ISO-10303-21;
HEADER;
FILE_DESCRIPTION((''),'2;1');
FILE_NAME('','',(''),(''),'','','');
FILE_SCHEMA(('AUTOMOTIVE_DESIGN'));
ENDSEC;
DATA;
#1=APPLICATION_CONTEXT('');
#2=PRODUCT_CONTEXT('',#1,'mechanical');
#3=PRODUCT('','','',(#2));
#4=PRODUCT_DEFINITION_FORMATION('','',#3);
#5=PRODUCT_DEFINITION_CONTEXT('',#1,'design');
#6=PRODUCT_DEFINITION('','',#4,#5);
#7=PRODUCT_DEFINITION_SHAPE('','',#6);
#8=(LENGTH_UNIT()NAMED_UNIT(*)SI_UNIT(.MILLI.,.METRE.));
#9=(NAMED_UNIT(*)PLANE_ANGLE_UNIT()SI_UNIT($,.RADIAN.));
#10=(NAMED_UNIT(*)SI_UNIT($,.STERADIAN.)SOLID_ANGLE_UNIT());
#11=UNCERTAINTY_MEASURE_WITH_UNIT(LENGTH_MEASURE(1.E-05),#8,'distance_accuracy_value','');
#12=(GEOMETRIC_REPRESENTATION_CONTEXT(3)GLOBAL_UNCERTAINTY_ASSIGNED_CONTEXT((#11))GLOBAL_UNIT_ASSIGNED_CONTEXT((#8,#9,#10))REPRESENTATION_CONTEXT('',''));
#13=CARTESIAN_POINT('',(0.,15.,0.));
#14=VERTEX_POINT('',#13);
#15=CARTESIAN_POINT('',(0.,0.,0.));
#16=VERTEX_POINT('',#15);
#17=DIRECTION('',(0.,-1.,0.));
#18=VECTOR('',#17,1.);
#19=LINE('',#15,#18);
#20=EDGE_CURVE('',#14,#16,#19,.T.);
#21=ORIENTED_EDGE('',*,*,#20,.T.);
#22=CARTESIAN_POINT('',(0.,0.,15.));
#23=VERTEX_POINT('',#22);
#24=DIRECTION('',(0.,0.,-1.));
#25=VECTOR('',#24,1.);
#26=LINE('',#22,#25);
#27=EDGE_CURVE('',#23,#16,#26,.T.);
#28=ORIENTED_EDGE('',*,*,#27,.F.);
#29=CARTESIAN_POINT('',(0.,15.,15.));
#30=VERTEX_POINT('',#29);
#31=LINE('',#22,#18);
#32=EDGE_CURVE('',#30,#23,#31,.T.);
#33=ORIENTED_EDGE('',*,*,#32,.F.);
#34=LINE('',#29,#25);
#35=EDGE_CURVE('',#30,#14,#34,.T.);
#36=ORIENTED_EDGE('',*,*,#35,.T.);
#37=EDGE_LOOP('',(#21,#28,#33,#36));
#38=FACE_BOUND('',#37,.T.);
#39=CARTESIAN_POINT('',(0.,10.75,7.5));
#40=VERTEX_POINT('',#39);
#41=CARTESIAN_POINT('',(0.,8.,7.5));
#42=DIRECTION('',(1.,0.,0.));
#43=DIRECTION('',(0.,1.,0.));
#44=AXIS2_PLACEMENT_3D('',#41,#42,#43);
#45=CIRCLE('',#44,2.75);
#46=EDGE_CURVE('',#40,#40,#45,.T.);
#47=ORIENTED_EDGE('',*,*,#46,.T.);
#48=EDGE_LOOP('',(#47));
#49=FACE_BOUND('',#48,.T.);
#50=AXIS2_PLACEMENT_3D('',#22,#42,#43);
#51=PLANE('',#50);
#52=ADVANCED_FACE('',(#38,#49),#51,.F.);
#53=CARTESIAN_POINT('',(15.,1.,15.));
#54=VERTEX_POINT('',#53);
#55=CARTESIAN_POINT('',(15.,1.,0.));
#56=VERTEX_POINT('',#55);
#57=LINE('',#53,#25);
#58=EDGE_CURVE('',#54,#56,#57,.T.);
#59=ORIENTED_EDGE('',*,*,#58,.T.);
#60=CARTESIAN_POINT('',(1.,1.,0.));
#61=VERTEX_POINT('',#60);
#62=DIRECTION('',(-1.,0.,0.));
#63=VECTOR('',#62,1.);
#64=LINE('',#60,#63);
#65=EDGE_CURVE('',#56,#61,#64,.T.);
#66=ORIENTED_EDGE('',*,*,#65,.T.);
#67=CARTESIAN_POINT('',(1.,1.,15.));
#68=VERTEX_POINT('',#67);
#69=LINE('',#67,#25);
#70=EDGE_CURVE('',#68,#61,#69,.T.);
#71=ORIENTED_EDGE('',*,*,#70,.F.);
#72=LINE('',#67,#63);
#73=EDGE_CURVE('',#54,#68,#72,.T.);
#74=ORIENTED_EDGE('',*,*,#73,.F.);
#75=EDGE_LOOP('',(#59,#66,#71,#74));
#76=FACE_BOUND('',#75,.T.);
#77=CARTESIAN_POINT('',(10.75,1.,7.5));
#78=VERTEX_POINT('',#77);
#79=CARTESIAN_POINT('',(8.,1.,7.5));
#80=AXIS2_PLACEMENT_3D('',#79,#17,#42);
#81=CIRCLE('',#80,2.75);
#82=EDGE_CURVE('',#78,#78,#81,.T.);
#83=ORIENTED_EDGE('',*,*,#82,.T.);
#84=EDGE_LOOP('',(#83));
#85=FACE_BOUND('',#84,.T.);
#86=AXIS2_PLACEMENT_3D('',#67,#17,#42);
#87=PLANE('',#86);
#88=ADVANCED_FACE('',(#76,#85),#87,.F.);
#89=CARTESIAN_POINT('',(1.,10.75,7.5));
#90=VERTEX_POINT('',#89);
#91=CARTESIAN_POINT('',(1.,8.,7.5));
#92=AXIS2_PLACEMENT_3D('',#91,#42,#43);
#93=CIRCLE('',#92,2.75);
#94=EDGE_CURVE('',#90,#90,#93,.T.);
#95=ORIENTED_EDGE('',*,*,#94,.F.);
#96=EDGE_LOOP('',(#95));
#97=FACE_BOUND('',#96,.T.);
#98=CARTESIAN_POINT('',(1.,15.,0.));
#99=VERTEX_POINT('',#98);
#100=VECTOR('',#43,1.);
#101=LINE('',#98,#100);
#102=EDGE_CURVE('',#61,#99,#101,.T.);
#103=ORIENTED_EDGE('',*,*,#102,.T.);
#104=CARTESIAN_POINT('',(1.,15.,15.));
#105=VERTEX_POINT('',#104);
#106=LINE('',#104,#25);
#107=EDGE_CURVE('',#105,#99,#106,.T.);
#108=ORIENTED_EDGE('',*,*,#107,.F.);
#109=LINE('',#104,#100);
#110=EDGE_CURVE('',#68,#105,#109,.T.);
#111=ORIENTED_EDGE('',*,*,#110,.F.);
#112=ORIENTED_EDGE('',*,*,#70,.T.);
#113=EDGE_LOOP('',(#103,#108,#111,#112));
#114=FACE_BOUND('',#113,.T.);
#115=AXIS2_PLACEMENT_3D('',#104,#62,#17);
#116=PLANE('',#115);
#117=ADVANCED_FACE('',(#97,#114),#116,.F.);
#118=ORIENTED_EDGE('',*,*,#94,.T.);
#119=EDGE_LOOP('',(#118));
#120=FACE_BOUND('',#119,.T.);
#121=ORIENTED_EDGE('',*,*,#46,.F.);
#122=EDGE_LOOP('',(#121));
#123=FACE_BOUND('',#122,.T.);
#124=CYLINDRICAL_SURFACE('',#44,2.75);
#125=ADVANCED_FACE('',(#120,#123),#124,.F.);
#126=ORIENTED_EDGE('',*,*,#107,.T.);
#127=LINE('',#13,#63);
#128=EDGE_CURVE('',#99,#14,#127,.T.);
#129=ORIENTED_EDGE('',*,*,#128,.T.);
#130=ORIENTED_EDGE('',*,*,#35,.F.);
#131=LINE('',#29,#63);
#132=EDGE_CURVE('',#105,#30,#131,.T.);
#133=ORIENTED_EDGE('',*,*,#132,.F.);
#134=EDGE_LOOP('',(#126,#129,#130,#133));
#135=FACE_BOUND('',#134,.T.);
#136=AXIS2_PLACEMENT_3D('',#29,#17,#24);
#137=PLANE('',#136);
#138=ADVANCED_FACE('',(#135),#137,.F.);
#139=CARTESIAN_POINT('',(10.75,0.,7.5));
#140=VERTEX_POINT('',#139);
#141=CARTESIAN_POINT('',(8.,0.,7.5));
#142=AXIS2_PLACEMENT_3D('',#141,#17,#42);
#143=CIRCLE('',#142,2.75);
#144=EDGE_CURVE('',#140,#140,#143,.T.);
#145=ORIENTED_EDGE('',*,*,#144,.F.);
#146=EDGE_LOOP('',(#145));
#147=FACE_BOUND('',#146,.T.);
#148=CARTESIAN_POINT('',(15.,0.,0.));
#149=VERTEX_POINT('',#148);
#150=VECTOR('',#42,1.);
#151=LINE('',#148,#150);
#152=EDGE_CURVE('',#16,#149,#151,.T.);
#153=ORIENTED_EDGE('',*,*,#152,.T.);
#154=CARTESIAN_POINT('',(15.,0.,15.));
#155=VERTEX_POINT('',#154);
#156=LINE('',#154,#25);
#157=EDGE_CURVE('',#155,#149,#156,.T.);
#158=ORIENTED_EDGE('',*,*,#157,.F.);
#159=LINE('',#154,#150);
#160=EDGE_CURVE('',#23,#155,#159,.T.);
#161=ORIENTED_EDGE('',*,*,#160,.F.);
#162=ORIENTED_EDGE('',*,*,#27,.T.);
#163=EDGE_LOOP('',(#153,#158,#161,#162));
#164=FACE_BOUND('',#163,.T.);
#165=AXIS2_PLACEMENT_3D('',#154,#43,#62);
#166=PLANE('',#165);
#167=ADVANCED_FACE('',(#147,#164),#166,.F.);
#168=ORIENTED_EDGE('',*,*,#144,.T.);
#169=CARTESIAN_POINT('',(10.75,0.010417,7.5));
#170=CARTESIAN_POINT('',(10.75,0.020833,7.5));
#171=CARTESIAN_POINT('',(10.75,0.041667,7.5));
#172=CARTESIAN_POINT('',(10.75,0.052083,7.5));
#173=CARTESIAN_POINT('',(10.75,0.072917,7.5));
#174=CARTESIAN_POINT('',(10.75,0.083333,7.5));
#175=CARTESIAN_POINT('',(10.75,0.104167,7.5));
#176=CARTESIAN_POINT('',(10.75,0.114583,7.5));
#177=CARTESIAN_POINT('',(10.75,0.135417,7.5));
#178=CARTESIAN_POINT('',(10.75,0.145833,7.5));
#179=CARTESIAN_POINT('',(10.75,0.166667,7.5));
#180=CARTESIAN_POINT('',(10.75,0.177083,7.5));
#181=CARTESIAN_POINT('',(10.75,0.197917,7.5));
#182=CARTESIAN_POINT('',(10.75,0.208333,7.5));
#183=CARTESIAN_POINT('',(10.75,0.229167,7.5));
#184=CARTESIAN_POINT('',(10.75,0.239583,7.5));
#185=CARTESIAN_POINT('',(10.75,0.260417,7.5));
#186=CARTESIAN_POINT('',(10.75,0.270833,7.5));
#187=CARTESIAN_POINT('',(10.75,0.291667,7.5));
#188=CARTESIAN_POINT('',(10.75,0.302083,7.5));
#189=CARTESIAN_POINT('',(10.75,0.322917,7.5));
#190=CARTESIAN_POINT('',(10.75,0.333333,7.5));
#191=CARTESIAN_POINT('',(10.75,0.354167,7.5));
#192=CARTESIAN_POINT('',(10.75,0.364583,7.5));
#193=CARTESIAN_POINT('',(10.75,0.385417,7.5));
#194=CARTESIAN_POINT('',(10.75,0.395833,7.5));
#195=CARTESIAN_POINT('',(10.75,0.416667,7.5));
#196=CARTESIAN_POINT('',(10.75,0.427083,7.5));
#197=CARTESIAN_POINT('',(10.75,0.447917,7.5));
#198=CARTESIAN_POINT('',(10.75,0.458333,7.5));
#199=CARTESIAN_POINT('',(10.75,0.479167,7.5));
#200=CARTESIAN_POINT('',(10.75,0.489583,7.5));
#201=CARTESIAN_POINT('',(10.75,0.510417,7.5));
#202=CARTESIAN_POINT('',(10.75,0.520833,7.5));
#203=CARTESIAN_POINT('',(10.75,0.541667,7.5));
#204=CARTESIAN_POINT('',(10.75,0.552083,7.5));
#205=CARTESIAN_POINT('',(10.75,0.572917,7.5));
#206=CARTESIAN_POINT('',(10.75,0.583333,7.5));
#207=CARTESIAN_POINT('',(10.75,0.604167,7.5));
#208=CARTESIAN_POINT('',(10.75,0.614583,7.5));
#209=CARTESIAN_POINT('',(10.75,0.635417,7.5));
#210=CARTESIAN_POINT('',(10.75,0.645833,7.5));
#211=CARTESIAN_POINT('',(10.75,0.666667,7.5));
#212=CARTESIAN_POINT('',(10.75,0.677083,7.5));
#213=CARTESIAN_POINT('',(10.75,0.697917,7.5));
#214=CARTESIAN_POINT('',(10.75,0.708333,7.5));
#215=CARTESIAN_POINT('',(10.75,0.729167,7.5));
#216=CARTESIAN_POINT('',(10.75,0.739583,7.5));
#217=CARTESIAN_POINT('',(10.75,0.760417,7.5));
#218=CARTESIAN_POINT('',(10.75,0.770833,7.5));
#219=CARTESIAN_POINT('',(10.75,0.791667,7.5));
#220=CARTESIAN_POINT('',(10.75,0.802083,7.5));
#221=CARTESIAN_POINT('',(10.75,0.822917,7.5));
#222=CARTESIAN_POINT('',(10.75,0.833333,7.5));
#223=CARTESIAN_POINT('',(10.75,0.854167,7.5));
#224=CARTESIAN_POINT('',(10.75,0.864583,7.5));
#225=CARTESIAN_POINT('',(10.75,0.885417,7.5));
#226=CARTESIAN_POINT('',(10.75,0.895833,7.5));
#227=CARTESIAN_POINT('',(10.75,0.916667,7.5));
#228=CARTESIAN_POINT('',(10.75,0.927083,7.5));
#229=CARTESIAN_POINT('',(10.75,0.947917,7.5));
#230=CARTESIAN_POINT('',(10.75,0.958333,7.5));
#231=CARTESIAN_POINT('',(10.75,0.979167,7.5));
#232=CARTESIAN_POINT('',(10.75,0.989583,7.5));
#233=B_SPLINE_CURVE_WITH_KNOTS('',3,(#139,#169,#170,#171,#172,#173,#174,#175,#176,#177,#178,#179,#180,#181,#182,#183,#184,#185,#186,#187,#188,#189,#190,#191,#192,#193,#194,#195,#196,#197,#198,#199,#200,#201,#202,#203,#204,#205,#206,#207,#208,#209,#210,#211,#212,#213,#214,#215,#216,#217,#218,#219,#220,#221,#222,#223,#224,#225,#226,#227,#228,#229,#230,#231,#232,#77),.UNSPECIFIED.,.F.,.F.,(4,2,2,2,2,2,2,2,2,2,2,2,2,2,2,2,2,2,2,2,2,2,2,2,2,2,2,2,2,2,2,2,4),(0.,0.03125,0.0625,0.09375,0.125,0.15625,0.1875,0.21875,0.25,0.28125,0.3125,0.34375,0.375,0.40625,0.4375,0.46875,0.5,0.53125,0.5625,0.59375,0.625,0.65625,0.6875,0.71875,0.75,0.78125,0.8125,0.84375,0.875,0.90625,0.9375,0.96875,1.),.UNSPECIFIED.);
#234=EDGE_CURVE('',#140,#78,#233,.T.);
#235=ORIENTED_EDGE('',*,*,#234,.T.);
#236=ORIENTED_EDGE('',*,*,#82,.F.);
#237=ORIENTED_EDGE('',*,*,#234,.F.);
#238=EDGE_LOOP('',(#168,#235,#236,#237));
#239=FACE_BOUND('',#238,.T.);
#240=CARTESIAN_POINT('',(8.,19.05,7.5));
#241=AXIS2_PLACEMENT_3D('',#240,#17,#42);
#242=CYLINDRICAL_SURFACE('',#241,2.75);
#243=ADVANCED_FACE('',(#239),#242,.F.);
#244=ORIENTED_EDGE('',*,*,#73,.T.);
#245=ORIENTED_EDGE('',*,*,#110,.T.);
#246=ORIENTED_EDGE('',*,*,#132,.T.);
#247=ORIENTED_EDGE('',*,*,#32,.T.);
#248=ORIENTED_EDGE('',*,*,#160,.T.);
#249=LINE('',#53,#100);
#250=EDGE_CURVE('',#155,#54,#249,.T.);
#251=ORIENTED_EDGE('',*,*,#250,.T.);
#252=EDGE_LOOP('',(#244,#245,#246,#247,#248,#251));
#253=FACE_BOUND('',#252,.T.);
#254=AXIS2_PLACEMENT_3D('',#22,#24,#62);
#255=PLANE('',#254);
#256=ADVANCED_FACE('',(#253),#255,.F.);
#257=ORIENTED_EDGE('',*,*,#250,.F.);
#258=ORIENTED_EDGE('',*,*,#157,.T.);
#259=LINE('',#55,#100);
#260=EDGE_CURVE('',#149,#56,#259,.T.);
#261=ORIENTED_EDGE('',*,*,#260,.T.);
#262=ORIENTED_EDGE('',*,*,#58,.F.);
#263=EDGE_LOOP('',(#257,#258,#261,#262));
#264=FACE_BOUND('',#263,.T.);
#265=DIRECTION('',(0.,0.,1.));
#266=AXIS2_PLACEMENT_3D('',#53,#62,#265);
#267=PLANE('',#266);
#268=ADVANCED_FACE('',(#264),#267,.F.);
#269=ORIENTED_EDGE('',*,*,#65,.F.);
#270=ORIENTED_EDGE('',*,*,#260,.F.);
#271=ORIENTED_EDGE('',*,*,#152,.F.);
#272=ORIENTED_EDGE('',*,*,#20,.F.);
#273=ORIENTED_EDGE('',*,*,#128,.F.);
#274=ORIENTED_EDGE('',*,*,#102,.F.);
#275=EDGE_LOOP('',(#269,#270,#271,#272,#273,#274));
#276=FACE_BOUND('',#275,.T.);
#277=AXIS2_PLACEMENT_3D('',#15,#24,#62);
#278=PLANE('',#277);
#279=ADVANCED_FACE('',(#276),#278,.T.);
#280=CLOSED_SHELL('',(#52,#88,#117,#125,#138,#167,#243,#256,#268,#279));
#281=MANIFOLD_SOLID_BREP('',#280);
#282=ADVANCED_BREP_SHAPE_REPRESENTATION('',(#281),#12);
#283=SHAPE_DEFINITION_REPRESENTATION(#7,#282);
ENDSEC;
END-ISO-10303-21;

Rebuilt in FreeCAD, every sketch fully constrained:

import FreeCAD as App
import Part
import Sketcher

V = App.Vector

doc = App.newDocument("Part")
body = doc.addObject("PartDesign::Body", "Body")

sketch1 = doc.addObject("Sketcher::SketchObject", "Sketch")
body.addObject(sketch1)
sketch1.AttachmentSupport = (doc.XY_Plane, [""])
sketch1.MapMode = "FlatFace"
sketch1.addGeometry([
    Part.LineSegment(V(0, 15, 0), V(0, 0, 0)),
    Part.LineSegment(V(0, 0, 0), V(15, 0, 0)),
    Part.LineSegment(V(15, 0, 0), V(15, 1, 0)),
    Part.LineSegment(V(15, 1, 0), V(1, 1, 0)),
    Part.LineSegment(V(1, 1, 0), V(1, 15, 0)),
    Part.LineSegment(V(1, 15, 0), V(0, 15, 0)),
], False)
sketch1.addConstraint([
    Sketcher.Constraint("Coincident", 0, 2, 1, 1),
    Sketcher.Constraint("Coincident", 1, 2, 2, 1),
    Sketcher.Constraint("Coincident", 2, 2, 3, 1),
    Sketcher.Constraint("Coincident", 3, 2, 4, 1),
    Sketcher.Constraint("Coincident", 4, 2, 5, 1),
    Sketcher.Constraint("Coincident", 5, 2, 0, 1),
    Sketcher.Constraint("Vertical", 0),
    Sketcher.Constraint("Horizontal", 1),
    Sketcher.Constraint("Vertical", 2),
    Sketcher.Constraint("Horizontal", 3),
    Sketcher.Constraint("Vertical", 4),
    Sketcher.Constraint("Horizontal", 5),
    Sketcher.Constraint("Coincident", 0, 2, -1, 1),
    Sketcher.Constraint("Equal", 1, 0),
    Sketcher.Constraint("Equal", 5, 2),
    Sketcher.Constraint("DistanceX", 1, 1, 1, 2, 15.0),
    Sketcher.Constraint("DistanceX", 3, 2, 3, 1, 14.0),
])
pad1 = doc.addObject("PartDesign::Pad", "Pad")
body.addObject(pad1)
pad1.Profile = sketch1
pad1.Length = 15

sketch2 = doc.addObject("Sketcher::SketchObject", "Sketch001")
body.addObject(sketch2)
sketch2.AttachmentSupport = (doc.XZ_Plane, [""])
sketch2.MapMode = "FlatFace"
sketch2.addGeometry(Part.Circle(V(8, 7.5, 0), V(0, 0, 1), 2.75), False)
sketch2.addConstraint([
    Sketcher.Constraint("Diameter", 0, 5.5),
    Sketcher.Constraint("DistanceX", -1, 1, 0, 3, 8.0),
    Sketcher.Constraint("DistanceY", -1, 1, 0, 3, 7.5),
])
pocket1 = doc.addObject("PartDesign::Pocket", "Pocket")
body.addObject(pocket1)
pocket1.Profile = sketch2
pocket1.Length = 19.05

sketch3 = doc.addObject("Sketcher::SketchObject", "Sketch002")
body.addObject(sketch3)
sketch3.AttachmentSupport = (doc.YZ_Plane, [""])
sketch3.MapMode = "FlatFace"
sketch3.AttachmentOffset = App.Placement(V(0, 0, 1), App.Rotation())
sketch3.addGeometry(Part.Circle(V(8, 7.5, 0), V(0, 0, 1), 2.75), False)
sketch3.addConstraint([
    Sketcher.Constraint("Diameter", 0, 5.5),
    Sketcher.Constraint("DistanceX", -1, 1, 0, 3, 8.0),
    Sketcher.Constraint("DistanceY", -1, 1, 0, 3, 7.5),
])
pocket2 = doc.addObject("PartDesign::Pocket", "Pocket001")
body.addObject(pocket2)
pocket2.Profile = sketch3
pocket2.Type = "ThroughAll"

doc.recompute()
